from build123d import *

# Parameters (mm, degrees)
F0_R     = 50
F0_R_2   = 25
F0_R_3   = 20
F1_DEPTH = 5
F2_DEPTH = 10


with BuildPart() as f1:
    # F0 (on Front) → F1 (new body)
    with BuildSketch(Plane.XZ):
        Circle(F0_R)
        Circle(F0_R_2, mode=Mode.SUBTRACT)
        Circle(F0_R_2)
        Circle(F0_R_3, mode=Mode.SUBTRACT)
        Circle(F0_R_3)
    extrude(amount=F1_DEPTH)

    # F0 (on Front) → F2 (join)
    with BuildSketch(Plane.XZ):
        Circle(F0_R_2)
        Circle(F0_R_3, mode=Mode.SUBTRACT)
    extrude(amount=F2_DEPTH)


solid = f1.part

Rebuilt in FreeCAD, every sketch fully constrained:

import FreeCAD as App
import Part
import Sketcher

V = App.Vector
Q = App.Units.Quantity

doc = App.newDocument("Part")
body = doc.addObject("PartDesign::Body", "Body")

sketch1 = body.newObject("Sketcher::SketchObject", "Sketch")
sketch1.AttachmentSupport = (doc.getObject("XZ_Plane"), [""])
sketch1.MapMode = "FlatFace"
sketch1.addGeometry(Part.Circle(V(0, 0, 0), V(0, 0, 1), 50), False)
sketch1.addConstraint(Sketcher.Constraint("Coincident", 0, 3, -1, 1))
sketch1.addConstraint(Sketcher.Constraint("Diameter", 0, Q("100 mm")))
pad1 = body.newObject("PartDesign::Pad", "Pad")
pad1.Profile = sketch1
pad1.Length = 5

sketch2 = body.newObject("Sketcher::SketchObject", "Sketch001")
sketch2.AttachmentSupport = (doc.getObject("XZ_Plane"), [""])
sketch2.MapMode = "FlatFace"
sketch2.addGeometry(Part.Circle(V(0, 0, 0), V(0, 0, 1), 25), False)
sketch2.addGeometry(Part.Circle(V(0, 0, 0), V(0, 0, 1), 20), False)
sketch2.addConstraint(Sketcher.Constraint("Coincident", 0, 3, -1, 1))
sketch2.addConstraint(Sketcher.Constraint("Coincident", 1, 3, -1, 1))
sketch2.addConstraint(Sketcher.Constraint("Diameter", 0, Q("50 mm")))
sketch2.addConstraint(Sketcher.Constraint("Diameter", 1, Q("40 mm")))
pad2 = body.newObject("PartDesign::Pad", "Pad001")
pad2.Profile = sketch2
pad2.Length = 10

doc.recompute()
